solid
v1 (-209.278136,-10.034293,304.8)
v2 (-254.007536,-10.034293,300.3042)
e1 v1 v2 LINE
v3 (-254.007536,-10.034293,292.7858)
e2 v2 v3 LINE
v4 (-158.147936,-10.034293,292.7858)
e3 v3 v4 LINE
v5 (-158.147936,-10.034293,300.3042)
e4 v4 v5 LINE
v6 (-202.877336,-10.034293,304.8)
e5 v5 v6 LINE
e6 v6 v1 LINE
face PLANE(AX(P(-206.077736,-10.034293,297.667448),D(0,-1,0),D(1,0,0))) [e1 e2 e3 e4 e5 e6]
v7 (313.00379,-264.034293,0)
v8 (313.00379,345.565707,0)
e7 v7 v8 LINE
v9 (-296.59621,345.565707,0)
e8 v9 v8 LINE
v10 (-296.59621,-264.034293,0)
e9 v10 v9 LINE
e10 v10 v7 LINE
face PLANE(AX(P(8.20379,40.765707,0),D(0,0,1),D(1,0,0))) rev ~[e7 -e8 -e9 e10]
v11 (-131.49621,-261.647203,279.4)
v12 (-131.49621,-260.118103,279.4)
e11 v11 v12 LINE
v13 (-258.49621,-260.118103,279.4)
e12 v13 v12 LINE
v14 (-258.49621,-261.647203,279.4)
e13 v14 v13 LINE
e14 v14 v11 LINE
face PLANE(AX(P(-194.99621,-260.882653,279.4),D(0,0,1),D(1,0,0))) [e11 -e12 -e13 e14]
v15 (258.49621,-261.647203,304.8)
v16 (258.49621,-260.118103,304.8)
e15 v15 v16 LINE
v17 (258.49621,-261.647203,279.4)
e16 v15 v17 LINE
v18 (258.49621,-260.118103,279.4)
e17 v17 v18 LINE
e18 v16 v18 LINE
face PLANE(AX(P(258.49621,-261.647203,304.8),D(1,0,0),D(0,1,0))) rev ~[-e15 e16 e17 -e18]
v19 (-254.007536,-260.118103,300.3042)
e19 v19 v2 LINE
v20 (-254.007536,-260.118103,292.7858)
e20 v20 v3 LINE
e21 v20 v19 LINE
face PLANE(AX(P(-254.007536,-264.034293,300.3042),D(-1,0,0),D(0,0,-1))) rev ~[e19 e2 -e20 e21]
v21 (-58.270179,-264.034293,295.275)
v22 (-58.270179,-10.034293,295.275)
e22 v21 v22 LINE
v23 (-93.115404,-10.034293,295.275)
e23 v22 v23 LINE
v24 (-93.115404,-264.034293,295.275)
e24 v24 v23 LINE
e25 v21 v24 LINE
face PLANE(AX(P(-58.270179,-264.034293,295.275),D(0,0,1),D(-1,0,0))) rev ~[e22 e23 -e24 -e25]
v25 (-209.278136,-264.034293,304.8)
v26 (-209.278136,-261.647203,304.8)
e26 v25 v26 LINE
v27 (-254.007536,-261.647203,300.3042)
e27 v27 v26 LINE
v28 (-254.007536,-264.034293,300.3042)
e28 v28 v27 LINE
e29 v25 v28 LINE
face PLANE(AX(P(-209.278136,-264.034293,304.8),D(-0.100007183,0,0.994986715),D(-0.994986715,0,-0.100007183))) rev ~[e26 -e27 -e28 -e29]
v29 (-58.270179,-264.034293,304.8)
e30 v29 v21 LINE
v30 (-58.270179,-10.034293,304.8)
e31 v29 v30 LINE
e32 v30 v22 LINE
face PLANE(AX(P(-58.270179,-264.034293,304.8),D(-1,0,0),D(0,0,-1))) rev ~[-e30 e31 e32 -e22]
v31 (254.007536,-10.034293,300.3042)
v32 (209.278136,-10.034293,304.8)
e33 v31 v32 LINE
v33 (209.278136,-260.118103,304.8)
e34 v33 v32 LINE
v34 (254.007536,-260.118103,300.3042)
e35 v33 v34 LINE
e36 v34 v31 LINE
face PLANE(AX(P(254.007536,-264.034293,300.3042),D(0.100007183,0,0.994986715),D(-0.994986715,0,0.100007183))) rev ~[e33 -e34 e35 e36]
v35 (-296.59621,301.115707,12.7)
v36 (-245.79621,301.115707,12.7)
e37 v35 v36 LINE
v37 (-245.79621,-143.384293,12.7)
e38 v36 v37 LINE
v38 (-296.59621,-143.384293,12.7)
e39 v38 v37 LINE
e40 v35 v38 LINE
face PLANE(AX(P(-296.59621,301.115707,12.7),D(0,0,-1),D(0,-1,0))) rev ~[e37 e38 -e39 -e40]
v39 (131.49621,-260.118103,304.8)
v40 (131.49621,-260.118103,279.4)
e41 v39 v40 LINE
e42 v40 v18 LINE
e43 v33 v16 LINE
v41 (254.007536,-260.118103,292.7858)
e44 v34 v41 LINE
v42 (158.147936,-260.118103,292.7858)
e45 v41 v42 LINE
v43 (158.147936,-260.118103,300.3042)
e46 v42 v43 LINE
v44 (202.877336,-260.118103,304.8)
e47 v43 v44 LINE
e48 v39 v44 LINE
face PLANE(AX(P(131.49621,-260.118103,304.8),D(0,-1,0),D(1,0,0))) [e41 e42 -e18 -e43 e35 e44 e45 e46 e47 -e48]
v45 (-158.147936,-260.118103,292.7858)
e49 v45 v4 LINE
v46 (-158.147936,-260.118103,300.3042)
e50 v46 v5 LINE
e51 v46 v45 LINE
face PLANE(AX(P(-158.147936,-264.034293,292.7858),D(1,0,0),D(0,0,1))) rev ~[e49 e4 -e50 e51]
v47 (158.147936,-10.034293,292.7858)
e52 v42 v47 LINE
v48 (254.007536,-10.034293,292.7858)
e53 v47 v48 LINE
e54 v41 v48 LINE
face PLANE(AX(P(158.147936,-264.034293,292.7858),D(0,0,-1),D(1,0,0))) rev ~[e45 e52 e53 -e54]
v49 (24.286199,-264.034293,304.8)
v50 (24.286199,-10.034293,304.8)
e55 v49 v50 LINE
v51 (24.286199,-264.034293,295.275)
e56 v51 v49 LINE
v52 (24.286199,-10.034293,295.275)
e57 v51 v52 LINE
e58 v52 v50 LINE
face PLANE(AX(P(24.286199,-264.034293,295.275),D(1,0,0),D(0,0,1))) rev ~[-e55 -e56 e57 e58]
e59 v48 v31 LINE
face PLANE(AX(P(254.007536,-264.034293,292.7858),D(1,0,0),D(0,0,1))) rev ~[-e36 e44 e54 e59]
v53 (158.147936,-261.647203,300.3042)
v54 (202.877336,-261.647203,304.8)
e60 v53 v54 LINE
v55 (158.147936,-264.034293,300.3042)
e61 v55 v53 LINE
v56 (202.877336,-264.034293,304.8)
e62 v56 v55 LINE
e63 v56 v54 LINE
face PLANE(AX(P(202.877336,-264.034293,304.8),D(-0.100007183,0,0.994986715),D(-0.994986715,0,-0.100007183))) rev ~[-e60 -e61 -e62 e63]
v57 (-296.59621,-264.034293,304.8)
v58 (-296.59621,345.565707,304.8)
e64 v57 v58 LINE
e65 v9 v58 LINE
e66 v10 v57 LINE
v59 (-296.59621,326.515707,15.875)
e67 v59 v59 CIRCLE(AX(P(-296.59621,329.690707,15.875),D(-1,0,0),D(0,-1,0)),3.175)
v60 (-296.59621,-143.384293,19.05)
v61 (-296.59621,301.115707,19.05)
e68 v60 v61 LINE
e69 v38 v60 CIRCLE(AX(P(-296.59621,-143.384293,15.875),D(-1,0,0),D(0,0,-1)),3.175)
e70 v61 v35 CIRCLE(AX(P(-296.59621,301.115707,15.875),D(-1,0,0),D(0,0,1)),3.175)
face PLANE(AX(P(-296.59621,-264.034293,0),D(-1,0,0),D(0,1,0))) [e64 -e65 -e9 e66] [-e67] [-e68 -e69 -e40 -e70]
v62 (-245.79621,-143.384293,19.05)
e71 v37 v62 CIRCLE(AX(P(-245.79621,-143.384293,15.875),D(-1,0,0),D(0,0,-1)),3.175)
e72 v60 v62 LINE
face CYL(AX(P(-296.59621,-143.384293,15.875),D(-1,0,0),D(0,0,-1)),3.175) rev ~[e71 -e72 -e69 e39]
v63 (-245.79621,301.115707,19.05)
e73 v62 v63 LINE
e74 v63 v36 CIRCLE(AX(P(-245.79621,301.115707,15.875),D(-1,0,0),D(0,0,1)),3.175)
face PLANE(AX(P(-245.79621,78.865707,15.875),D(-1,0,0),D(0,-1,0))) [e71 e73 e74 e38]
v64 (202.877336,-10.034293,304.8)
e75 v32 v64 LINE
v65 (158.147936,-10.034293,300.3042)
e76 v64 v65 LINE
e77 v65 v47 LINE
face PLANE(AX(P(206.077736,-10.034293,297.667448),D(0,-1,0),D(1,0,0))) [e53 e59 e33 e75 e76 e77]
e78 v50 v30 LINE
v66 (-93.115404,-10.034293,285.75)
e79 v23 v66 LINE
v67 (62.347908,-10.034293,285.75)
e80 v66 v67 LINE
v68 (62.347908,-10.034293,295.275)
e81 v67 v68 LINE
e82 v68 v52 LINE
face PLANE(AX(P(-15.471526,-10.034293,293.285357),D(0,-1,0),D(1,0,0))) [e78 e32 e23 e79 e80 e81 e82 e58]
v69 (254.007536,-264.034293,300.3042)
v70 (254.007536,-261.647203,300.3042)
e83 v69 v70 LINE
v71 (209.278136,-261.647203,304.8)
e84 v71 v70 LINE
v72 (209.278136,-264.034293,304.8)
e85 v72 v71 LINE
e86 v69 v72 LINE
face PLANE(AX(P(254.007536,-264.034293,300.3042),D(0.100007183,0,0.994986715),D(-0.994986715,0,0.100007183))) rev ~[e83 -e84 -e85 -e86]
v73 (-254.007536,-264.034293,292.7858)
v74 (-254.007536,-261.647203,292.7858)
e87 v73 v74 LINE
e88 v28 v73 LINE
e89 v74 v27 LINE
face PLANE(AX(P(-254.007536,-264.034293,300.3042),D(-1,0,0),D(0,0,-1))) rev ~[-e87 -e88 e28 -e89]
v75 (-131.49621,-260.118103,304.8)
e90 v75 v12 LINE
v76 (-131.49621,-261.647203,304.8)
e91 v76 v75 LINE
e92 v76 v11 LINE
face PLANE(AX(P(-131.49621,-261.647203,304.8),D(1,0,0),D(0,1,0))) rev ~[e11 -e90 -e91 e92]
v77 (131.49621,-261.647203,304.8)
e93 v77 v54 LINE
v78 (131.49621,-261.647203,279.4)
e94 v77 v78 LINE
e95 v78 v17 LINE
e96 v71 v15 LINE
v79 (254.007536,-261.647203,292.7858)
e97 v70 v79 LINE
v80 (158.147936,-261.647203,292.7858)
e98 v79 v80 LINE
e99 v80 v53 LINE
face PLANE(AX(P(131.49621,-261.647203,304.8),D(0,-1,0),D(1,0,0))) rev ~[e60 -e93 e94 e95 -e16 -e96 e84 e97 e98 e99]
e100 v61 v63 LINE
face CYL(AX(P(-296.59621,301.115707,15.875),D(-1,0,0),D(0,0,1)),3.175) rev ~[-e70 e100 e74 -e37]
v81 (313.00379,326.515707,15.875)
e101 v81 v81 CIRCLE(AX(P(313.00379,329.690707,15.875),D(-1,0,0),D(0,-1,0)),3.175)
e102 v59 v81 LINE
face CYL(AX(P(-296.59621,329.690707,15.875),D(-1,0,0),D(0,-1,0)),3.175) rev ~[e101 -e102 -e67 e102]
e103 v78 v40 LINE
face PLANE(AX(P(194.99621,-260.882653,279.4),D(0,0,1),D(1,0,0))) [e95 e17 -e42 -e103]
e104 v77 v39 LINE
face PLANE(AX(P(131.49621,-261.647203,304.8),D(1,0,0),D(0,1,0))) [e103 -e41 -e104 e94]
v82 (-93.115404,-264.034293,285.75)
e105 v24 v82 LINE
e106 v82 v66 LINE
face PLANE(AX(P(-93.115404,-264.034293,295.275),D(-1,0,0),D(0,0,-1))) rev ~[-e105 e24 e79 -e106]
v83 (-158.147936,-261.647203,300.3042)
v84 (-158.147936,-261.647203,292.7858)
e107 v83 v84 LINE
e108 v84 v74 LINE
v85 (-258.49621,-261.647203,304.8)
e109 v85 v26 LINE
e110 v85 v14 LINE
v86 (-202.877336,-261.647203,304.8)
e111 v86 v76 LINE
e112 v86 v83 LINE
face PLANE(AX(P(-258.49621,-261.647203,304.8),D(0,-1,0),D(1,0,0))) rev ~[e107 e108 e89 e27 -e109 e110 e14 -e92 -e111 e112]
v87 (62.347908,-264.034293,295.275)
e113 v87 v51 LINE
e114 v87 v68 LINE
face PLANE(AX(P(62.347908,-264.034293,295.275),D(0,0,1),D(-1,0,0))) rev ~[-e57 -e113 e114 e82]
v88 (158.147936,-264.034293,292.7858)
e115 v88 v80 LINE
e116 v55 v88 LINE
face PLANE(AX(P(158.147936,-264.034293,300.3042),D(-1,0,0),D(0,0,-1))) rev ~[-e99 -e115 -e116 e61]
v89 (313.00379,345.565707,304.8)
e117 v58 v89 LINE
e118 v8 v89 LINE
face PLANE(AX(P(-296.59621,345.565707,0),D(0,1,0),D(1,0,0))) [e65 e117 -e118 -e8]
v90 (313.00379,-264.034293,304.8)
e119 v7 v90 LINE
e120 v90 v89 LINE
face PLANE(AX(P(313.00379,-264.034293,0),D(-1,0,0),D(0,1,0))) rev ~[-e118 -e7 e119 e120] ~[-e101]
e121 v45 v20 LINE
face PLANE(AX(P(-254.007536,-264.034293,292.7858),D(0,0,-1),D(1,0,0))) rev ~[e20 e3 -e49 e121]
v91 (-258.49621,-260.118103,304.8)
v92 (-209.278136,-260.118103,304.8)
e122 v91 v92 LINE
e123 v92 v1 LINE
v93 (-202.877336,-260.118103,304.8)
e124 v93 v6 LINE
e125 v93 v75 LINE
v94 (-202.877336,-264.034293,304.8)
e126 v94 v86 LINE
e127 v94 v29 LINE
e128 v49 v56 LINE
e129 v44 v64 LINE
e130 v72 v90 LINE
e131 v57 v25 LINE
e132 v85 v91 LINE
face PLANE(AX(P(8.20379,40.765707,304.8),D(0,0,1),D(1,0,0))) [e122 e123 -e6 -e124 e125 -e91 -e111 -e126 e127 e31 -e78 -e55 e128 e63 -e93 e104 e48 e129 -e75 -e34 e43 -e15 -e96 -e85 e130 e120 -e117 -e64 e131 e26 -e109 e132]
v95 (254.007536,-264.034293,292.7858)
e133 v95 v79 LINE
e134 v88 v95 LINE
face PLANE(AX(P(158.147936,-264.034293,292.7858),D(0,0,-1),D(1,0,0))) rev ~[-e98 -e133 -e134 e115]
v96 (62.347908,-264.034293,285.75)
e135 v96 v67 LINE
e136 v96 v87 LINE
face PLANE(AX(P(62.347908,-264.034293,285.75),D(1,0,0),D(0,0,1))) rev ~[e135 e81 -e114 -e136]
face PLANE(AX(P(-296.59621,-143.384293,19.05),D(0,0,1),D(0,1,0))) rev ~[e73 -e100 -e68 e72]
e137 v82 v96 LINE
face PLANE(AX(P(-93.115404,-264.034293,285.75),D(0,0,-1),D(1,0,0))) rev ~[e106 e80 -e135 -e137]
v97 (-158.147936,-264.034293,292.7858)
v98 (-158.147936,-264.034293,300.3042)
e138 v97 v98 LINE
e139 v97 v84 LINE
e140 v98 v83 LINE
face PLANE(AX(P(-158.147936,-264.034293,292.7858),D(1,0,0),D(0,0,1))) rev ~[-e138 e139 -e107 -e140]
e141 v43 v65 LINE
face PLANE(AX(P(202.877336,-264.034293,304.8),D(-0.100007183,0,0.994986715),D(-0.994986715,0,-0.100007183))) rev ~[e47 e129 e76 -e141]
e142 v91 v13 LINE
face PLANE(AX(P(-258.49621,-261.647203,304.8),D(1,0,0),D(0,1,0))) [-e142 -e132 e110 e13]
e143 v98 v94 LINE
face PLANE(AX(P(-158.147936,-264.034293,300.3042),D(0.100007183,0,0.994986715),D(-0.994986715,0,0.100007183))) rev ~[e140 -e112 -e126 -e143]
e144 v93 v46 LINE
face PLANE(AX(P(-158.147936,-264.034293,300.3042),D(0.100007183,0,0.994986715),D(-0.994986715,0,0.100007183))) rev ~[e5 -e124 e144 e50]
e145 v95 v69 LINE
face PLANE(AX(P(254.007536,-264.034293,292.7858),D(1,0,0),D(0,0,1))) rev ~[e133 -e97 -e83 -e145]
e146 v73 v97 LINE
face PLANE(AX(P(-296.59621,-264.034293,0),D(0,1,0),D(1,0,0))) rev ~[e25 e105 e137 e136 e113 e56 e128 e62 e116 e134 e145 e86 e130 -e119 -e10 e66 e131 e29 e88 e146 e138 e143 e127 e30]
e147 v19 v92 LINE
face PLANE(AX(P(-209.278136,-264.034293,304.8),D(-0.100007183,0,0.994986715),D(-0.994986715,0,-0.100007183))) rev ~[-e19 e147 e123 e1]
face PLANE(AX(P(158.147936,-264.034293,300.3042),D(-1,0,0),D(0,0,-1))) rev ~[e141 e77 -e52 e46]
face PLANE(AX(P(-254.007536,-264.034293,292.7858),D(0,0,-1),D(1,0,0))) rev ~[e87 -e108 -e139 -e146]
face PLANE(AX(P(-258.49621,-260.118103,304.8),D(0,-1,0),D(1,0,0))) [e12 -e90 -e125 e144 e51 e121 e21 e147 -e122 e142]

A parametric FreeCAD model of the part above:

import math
import FreeCAD as App
import Part
import Sketcher
Q = App.Units.Quantity


def add_polygon(sketch, points):
    """Adds a closed chain of lines whose ends are joined by coincident constraints."""
    first, n = sketch.GeometryCount, len(points)
    for a, b in zip(points, points[1:] + points[:1]):
        sketch.addGeometry(Part.LineSegment(App.Vector(*a, 0), App.Vector(*b, 0)), False)
    for i in range(n):
        sketch.addConstraint(Sketcher.Constraint("Coincident", first + i, 2, first + (i + 1) % n, 1))

doc = App.newDocument("Part")
body = doc.addObject("PartDesign::Body", "Body")

# Sketch on XY plane
sketch1 = body.newObject("Sketcher::SketchObject", "Sketch")
sketch1.AttachmentSupport = (doc.getObject("XY_Plane"), [""])
sketch1.MapMode = "FlatFace"
add_polygon(sketch1, [(-296.59621, 345.565707), (-296.59621, -264.034293), (313.00379, -264.034293), (313.00379, 345.565707)])  # lines 0-3
sketch1.addConstraint([
    Sketcher.Constraint("Vertical", 0),
    Sketcher.Constraint("Horizontal", 1),
    Sketcher.Constraint("Vertical", 2),
    Sketcher.Constraint("Horizontal", 3),
    Sketcher.Constraint("Equal", 3, 0),
    Sketcher.Constraint("DistanceX", 1, 1, 1, 2, Q("24 in")),
    Sketcher.Constraint("DistanceX", 0, 2, -1, 1, Q("296.59621 mm")),
    Sketcher.Constraint("DistanceY", 0, 2, -1, 1, Q("264.034293 mm")),
])
pad1 = body.newObject("PartDesign::Pad", "Pad")
pad1.Profile = sketch1
pad1.Length = Q("12 in")

# Sketch on YZ plane
sketch2 = body.newObject("Sketcher::SketchObject", "Sketch001")
sketch2.AttachmentSupport = (doc.getObject("YZ_Plane"), [""])
sketch2.MapMode = "FlatFace"
sketch2.AttachmentOffset = App.Placement(App.Vector(0, 0, -296.59621), App.Rotation())
sketch2.addGeometry(Part.Circle(App.Vector(329.690707, 15.875, 0), App.Vector(0, 0, 1), 3.175), False)
sketch2.addConstraint([
    Sketcher.Constraint("Diameter", 0, Q("0.25 in")),
    Sketcher.Constraint("DistanceY", -1, 1, 0, 3, Q("0.625 in")),
    Sketcher.Constraint("DistanceX", -1, 1, 0, 3, Q("329.690707 mm")),
])
pocket1 = body.newObject("PartDesign::Pocket", "Pocket")
pocket1.Profile = sketch2
pocket1.Length = Q("24 in")
pocket1.Reversed = True

# Sketch on YZ plane
sketch3 = body.newObject("Sketcher::SketchObject", "Sketch002")
sketch3.AttachmentSupport = (doc.getObject("YZ_Plane"), [""])
sketch3.MapMode = "FlatFace"
sketch3.AttachmentOffset = App.Placement(App.Vector(0, 0, -296.59621), App.Rotation())
sketch3.addGeometry([
    Part.LineSegment(App.Vector(-143.384293, 19.05, 0), App.Vector(301.115707, 19.05, 0)),
    Part.ArcOfCircle(Part.Circle(App.Vector(301.115707, 15.875, 0), App.Vector(0, 0, 1), 3.175), math.radians(-90), math.radians(90)),
    Part.LineSegment(App.Vector(301.115707, 12.7, 0), App.Vector(-143.384293, 12.7, 0)),
    Part.ArcOfCircle(Part.Circle(App.Vector(-143.384293, 15.875, 0), App.Vector(0, 0, 1), 3.175), math.radians(90), math.radians(270)),
], False)
sketch3.addConstraint([
    Sketcher.Constraint("Tangent", 0, 2, 1, 2),
    Sketcher.Constraint("Tangent", 1, 1, 2, 1),
    Sketcher.Constraint("Tangent", 2, 2, 3, 2),
    Sketcher.Constraint("Tangent", 3, 1, 0, 1),
    Sketcher.Constraint("Horizontal", 0),
    Sketcher.Constraint("Horizontal", 2),
    Sketcher.Constraint("DistanceX", 0, 1, 0, 2, Q("17.5 in")),
    Sketcher.Constraint("Radius", 1, Q("0.125 in")),
    Sketcher.Constraint("DistanceY", -1, 1, 1, 1, Q("0.5 in")),
    Sketcher.Constraint("DistanceX", -1, 1, 1, 3, Q("301.115707 mm")),
])
pocket2 = body.newObject("PartDesign::Pocket", "Pocket001")
pocket2.Profile = sketch3
pocket2.Length = Q("2 in")
pocket2.Reversed = True

# Sketch on XZ plane
sketch4 = body.newObject("Sketcher::SketchObject", "Sketch003")
sketch4.AttachmentSupport = (doc.getObject("XZ_Plane"), [""])
sketch4.MapMode = "FlatFace"
sketch4.AttachmentOffset = App.Placement(App.Vector(0, 0, 264.034293), App.Rotation())
add_polygon(sketch4, [(254.007536, 300.3042), (209.278136, 304.8), (202.877336, 304.8), (158.147936, 300.3042), (158.147936, 292.7858), (254.007536, 292.7858)])  # lines 0-5
add_polygon(sketch4, [(-254.007536, 292.7858), (-158.147936, 292.7858), (-158.147936, 300.3042), (-202.877336, 304.8), (-209.278136, 304.8), (-254.007536, 300.3042)])  # lines 6-11
add_polygon(sketch4, [(24.286199, 295.275), (24.286199, 304.8), (-58.270179, 304.8), (-58.270179, 295.275), (-93.115404, 295.275), (-93.115404, 285.75), (62.347908, 285.75), (62.347908, 295.275)])  # lines 12-19
sketch4.addConstraint([
    Sketcher.Constraint("Horizontal", 1),
    Sketcher.Constraint("Vertical", 3),
    Sketcher.Constraint("Horizontal", 4),
    Sketcher.Constraint("Vertical", 5),
    Sketcher.Constraint("Horizontal", 6),
    Sketcher.Constraint("Vertical", 7),
    Sketcher.Constraint("Horizontal", 9),
    Sketcher.Constraint("Vertical", 11),
    Sketcher.Constraint("Vertical", 12),
    Sketcher.Constraint("Horizontal", 13),
    Sketcher.Constraint("Vertical", 14),
    Sketcher.Constraint("Horizontal", 15),
    Sketcher.Constraint("Vertical", 16),
    Sketcher.Constraint("Horizontal", 17),
    Sketcher.Constraint("Vertical", 18),
    Sketcher.Constraint("Horizontal", 19),
    Sketcher.Constraint("Symmetric", 3, 2, 6, 2, -2),
    Sketcher.Constraint("Symmetric", 1, 2, 8, 2, -2),
    Sketcher.Constraint("Symmetric", 5, 2, 10, 2, -2),
    Sketcher.Constraint("Parallel", 0, 8),
    Sketcher.Constraint("Parallel", 2, 10),
    Sketcher.Constraint("Horizontal", 2, 2, 5, 2),
    Sketcher.Constraint("Horizontal", 5, 2, 7, 2),
    Sketcher.Constraint("Horizontal", 9, 2, 12, 2),
    Sketcher.Constraint("Horizontal", 15, 2, 18, 2),
    Sketcher.Constraint("Equal", 14, 16),
    Sketcher.Constraint("DistanceY", -1, 1, 0, 2, Q("12 in")),
    Sketcher.Constraint("DistanceX", 1, 2, 1, 1, Q("0.252 in")),
    Sketcher.Constraint("DistanceX", 4, 1, 4, 2, Q("3.774 in")),
    Sketcher.Constraint("DistanceY", 3, 2, 3, 1, Q("0.296 in")),
    Sketcher.Constraint("DistanceY", 12, 1, 12, 2, Q("0.375 in")),
    Sketcher.Constraint("DistanceY", -1, 1, 2, 2, Q("11.823 in")),
    Sketcher.Constraint("DistanceX", 17, 1, 17, 2, Q("155.463312 mm")),
    Sketcher.Constraint("DistanceX", 19, 2, 19, 1, Q("38.061709 mm")),
    Sketcher.Constraint("DistanceX", -1, 1, 12, 2, Q("24.286199 mm")),
    Sketcher.Constraint("DistanceX", 13, 2, 13, 1, Q("82.556378 mm")),
    Sketcher.Constraint("DistanceX", 6, 2, 3, 2, Q("316.295872 mm")),
])
pocket3 = body.newObject("PartDesign::Pocket", "Pocket002")
pocket3.Profile = sketch4
pocket3.Length = Q("10 in")

# Sketch on XY plane
sketch5 = body.newObject("Sketcher::SketchObject", "Sketch004")
sketch5.AttachmentSupport = (doc.getObject("XY_Plane"), [""])
sketch5.MapMode = "FlatFace"
sketch5.AttachmentOffset = App.Placement(App.Vector(0, 0, 12 * 25.4), App.Rotation())
add_polygon(sketch5, [(-258.49621, -260.118103), (-258.49621, -261.647203), (-131.49621, -261.647203), (-131.49621, -260.118103)])  # lines 0-3
add_polygon(sketch5, [(131.49621, -260.118103), (131.49621, -261.647203), (258.49621, -261.647203), (258.49621, -260.118103)])  # lines 4-7
sketch5.addConstraint([
    Sketcher.Constraint("Vertical", 0),
    Sketcher.Constraint("Horizontal", 1),
    Sketcher.Constraint("Vertical", 2),
    Sketcher.Constraint("Horizontal", 3),
    Sketcher.Constraint("Vertical", 4),
    Sketcher.Constraint("Horizontal", 5),
    Sketcher.Constraint("Vertical", 6),
    Sketcher.Constraint("Horizontal", 7),
    Sketcher.Constraint("Symmetric", 1, 2, 4, 2, -2),
    Sketcher.Constraint("Symmetric", 3, 2, 6, 2, -2),
    Sketcher.Constraint("DistanceX", 1, 1, 1, 2, Q("5 in")),
    Sketcher.Constraint("DistanceY", 0, 2, 0, 1, Q("1.5291 mm")),
    Sketcher.Constraint("DistanceX", 0, 2, -1, 1, Q("258.49621 mm")),
    Sketcher.Constraint("DistanceY", 0, 2, -1, 1, Q("261.647203 mm")),
])
pocket4 = body.newObject("PartDesign::Pocket", "Pocket003")
pocket4.Profile = sketch5
pocket4.Length = Q("1 in")

doc.recompute()
